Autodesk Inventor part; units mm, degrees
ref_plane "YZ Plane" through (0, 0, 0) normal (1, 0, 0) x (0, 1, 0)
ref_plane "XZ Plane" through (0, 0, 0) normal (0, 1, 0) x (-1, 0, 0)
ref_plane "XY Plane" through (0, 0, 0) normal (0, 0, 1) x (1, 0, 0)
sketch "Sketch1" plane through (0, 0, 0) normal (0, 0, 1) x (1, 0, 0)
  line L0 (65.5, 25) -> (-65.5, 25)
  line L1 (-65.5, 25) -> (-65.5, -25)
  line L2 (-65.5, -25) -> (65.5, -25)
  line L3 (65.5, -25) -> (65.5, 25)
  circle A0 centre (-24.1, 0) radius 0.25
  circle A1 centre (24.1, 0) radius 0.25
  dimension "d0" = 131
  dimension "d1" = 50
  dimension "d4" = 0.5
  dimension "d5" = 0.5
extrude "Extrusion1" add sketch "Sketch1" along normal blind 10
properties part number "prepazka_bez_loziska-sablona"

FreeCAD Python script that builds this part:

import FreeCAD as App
import Part
import Sketcher
from FreeCAD import Vector
Q = App.Units.Quantity

doc = App.newDocument("Part")
params = doc.addObject("Spreadsheet::Sheet", "Params")
for row, (alias, value) in enumerate([
    ("sketch1_diameter", "0.5 mm"),
    ("sketch1_width", "131 mm"),
    ("sketch1_height", "50 mm"),
    ("pad1_length", "10 mm"),
], start=1):
    params.set(f"A{row}", alias)
    params.set(f"B{row}", "=" + value)
    params.setAlias(f"B{row}", alias)

body = doc.addObject("PartDesign::Body", "Body")

# Sketch on XY plane
sketch1 = body.newObject("Sketcher::SketchObject", "Sketch")
sketch1.AttachmentSupport = (doc.getObject("XY_Plane"), [""])
sketch1.MapMode = "FlatFace"
sketch1.addGeometry(Part.LineSegment(Vector(65.5, -25, 0), Vector(65.5, 25, 0)), False)
sketch1.addGeometry(Part.LineSegment(Vector(65.5, 25, 0), Vector(-65.5, 25, 0)), False)
sketch1.addGeometry(Part.LineSegment(Vector(-65.5, 25, 0), Vector(-65.5, -25, 0)), False)
sketch1.addGeometry(Part.LineSegment(Vector(-65.5, -25, 0), Vector(65.5, -25, 0)), False)
sketch1.addGeometry(Part.Circle(Vector(-24.1, 0, 0), Vector(0, 0, 1), 0.25), False)
sketch1.addGeometry(Part.Circle(Vector(24.1, 0, 0), Vector(0, 0, 1), 0.25), False)
sketch1.addConstraint(Sketcher.Constraint("Coincident", 0, 2, 1, 1))
sketch1.addConstraint(Sketcher.Constraint("Coincident", 1, 2, 2, 1))
sketch1.addConstraint(Sketcher.Constraint("Coincident", 2, 2, 3, 1))
sketch1.addConstraint(Sketcher.Constraint("Coincident", 3, 2, 0, 1))
sketch1.addConstraint(Sketcher.Constraint("Vertical", 0))
sketch1.addConstraint(Sketcher.Constraint("Horizontal", 1))
sketch1.addConstraint(Sketcher.Constraint("Vertical", 2))
sketch1.addConstraint(Sketcher.Constraint("Horizontal", 3))
sketch1.addConstraint(Sketcher.Constraint("Equal", 4, 5))
sketch1.addConstraint(Sketcher.Constraint("Symmetric", 4, 3, 5, 3, -1, 1))
sketch1.addConstraint(Sketcher.Constraint("Symmetric", 0, 2, 2, 2, -1, 1))
sketch1.addConstraint(Sketcher.Constraint("PointOnObject", 4, 3, -1))
sketch1.addConstraint(Sketcher.Constraint("Diameter", 4, Q("0.5 mm")))
sketch1.addConstraint(Sketcher.Constraint("DistanceX", 1, 2, 1, 1, Q("131 mm")))
sketch1.addConstraint(Sketcher.Constraint("DistanceY", 0, 1, 0, 2, Q("50 mm")))
sketch1.addConstraint(Sketcher.Constraint("DistanceX", 4, 3, -1, 1, Q("24.1 mm")))
sketch1.setExpression("Constraints[12]", "Params.sketch1_diameter")
sketch1.setExpression("Constraints[13]", "Params.sketch1_width")
sketch1.setExpression("Constraints[14]", "Params.sketch1_height")
pad1 = body.newObject("PartDesign::Pad", "Pad")
pad1.Profile = sketch1
pad1.setExpression("Length", "Params.pad1_length")

doc.recompute()
